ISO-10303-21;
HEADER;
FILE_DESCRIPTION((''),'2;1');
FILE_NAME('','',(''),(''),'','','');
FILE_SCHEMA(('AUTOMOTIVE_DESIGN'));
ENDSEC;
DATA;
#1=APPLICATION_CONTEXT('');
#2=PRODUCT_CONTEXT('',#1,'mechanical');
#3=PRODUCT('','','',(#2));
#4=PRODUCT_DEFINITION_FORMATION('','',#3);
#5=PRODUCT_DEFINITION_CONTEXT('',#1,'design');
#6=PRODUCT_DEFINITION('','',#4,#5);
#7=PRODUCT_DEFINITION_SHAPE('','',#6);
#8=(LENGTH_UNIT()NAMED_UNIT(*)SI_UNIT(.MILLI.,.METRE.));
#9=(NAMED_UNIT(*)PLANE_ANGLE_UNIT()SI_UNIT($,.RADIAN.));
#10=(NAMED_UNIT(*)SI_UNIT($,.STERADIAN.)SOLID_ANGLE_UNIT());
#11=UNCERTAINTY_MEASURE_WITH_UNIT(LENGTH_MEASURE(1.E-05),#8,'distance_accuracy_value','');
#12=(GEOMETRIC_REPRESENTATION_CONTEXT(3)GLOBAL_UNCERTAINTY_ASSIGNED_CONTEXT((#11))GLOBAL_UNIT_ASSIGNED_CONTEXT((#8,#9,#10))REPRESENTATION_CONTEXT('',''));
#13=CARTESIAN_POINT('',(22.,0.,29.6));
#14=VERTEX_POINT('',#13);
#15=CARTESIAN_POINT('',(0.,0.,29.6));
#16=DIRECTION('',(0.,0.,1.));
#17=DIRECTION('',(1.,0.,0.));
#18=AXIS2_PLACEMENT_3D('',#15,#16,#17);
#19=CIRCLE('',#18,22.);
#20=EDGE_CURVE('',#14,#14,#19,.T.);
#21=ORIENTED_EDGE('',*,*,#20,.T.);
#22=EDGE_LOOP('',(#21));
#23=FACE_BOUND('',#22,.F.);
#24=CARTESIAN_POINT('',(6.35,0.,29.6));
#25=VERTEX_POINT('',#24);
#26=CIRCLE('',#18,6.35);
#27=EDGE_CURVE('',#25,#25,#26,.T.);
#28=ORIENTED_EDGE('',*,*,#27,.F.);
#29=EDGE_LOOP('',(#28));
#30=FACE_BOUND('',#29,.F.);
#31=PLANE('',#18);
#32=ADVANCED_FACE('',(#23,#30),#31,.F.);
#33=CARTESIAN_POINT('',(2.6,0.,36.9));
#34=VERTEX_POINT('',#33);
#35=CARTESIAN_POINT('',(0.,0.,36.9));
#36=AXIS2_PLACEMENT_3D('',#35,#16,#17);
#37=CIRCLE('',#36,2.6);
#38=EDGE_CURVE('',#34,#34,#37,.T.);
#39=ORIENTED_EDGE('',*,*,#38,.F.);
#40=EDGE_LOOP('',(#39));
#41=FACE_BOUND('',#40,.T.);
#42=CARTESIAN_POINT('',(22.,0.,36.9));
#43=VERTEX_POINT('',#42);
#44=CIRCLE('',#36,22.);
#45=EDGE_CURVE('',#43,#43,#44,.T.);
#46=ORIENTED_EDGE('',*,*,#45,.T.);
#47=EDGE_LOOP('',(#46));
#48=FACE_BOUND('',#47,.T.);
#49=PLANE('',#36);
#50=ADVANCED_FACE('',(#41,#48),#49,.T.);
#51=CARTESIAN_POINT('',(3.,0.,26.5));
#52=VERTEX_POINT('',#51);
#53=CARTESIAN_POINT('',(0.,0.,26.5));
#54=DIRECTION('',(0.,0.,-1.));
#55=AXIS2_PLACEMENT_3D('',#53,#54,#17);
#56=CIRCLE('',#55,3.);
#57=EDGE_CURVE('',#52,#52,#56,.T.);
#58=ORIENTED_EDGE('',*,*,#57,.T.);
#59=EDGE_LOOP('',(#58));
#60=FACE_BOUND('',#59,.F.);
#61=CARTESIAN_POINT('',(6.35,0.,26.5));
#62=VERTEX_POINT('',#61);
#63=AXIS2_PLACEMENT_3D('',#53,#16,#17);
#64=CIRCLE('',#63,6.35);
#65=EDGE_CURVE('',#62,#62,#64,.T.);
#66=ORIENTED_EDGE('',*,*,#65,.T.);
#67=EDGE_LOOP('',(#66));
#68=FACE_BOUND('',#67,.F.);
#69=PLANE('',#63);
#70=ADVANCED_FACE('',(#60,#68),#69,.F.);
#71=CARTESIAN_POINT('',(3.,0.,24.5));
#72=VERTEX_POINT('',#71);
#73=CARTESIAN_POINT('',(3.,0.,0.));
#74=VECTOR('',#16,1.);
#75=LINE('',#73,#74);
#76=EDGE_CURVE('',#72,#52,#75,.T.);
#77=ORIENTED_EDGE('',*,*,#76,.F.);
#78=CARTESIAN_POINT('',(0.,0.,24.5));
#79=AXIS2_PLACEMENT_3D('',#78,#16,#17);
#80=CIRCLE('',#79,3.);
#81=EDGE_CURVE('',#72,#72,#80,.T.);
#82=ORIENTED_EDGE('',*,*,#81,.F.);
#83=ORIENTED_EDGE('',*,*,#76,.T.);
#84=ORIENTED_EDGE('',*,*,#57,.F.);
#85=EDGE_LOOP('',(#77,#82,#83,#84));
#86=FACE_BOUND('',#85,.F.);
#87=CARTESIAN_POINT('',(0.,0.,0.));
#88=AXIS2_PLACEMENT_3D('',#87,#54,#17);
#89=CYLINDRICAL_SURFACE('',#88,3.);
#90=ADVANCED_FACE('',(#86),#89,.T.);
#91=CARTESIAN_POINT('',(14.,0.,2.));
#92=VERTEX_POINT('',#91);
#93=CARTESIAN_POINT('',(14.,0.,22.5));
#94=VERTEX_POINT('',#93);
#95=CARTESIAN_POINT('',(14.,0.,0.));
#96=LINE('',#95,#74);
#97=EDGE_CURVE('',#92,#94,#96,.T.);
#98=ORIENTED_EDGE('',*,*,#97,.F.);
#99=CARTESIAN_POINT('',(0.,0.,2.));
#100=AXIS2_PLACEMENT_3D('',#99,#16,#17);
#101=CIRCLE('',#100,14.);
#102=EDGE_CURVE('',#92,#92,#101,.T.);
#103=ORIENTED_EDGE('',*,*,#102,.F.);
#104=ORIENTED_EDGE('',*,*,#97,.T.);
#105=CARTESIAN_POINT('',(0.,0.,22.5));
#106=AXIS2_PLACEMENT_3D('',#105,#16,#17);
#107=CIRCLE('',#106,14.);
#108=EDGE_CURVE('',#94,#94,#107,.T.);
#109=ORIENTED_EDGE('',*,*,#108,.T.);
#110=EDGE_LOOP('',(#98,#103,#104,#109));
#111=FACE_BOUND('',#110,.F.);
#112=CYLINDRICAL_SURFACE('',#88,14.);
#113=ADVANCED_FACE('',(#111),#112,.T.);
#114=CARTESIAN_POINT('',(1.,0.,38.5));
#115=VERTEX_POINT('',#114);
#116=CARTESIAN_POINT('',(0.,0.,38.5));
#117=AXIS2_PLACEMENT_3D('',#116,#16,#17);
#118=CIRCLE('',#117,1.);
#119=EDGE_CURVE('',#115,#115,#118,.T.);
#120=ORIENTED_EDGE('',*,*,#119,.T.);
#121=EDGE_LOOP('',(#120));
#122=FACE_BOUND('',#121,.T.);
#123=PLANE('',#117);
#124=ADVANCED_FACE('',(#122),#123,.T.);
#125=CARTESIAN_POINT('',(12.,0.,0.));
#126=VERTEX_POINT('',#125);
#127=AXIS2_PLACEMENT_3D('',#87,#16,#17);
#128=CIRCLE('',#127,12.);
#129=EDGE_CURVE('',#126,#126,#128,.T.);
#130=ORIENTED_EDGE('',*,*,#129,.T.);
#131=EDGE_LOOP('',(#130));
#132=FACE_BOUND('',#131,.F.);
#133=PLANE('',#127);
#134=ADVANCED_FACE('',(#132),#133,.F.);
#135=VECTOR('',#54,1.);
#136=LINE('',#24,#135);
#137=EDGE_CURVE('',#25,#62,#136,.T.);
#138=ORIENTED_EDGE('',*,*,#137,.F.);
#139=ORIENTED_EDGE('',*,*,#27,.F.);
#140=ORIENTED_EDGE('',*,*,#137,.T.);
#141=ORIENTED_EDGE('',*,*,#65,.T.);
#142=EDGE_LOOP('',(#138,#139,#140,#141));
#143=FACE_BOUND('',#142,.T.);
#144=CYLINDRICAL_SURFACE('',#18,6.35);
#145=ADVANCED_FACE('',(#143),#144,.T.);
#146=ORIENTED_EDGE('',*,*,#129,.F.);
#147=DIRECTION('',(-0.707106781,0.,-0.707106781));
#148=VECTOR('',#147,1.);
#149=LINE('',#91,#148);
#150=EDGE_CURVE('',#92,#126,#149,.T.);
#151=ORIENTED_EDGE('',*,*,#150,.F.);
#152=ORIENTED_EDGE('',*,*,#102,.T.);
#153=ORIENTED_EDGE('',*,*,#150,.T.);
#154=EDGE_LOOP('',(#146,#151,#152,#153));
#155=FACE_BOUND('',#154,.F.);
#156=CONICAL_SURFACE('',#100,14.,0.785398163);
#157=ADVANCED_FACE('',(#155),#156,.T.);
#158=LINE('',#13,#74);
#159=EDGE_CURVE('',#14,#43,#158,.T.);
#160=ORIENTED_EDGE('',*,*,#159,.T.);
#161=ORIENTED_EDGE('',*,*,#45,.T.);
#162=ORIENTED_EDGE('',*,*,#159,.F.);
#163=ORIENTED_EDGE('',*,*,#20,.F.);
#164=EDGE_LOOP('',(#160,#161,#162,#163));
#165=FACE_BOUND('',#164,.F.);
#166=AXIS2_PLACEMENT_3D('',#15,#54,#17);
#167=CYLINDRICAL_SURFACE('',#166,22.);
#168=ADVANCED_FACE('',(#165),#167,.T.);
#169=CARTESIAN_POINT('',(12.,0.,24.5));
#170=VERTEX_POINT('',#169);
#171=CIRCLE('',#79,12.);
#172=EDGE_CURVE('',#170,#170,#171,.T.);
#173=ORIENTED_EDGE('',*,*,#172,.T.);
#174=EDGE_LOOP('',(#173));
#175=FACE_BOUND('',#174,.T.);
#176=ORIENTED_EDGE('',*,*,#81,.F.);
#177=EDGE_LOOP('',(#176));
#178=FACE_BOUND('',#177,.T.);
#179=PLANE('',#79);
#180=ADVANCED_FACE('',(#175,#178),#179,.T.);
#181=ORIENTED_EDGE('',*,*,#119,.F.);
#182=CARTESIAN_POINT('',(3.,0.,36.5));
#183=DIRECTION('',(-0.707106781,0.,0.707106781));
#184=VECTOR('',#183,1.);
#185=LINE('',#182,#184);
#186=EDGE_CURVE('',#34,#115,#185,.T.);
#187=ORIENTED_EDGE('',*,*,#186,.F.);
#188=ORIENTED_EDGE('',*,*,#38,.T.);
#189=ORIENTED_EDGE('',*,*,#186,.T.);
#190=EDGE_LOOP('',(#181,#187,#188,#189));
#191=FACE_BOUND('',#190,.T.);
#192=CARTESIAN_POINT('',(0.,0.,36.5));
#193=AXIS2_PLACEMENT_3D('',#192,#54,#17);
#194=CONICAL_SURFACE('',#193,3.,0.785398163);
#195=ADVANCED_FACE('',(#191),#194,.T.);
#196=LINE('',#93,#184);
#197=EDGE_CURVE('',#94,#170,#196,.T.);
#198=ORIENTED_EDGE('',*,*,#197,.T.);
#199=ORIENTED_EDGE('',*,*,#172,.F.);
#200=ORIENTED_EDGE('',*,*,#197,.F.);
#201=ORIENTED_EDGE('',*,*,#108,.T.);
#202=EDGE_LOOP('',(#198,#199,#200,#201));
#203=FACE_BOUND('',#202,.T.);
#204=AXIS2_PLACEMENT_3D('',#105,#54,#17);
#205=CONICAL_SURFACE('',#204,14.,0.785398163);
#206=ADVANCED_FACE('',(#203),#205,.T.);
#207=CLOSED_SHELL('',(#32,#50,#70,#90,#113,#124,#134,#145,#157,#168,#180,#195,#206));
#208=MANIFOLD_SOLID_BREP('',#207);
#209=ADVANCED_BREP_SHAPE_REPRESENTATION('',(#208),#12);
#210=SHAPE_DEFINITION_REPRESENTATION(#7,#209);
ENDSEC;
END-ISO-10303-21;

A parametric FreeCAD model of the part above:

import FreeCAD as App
import Part
import Sketcher

V = App.Vector
Q = App.Units.Quantity


def edges_at(feature, points):
    """Names of the edges that pass closest to the given points."""
    edges = feature.Shape.Edges
    near = lambda p: min(range(len(edges)), key=lambda i: edges[i].distToShape(Part.Vertex(*p))[0])
    return sorted({f"Edge{near(p) + 1}" for p in points})

doc = App.newDocument("Part")
body = doc.addObject("PartDesign::Body", "Body")

# Sketch on XY plane
sketch1 = body.newObject("Sketcher::SketchObject", "Sketch")
sketch1.AttachmentSupport = (doc.getObject("XY_Plane"), [""])
sketch1.MapMode = "FlatFace"
sketch1.addGeometry(Part.Circle(V(0, 0, 0), V(0, 0, 1), 3), False)
sketch1.addConstraint([
    Sketcher.Constraint("Coincident", 0, 3, -1, 1),
    Sketcher.Constraint("Diameter", 0, Q("6 mm")),
])
pad1 = body.newObject("PartDesign::Pad", "Pad")
pad1.Profile = sketch1
pad1.Length = 38.5

# Sketch on XY plane
sketch2 = body.newObject("Sketcher::SketchObject", "Sketch001")
sketch2.AttachmentSupport = (doc.getObject("XY_Plane"), [""])
sketch2.MapMode = "FlatFace"
sketch2.addGeometry([
    Part.Circle(V(0, 0, 0), V(0, 0, 1), 14),
    Part.Circle(V(0, 0, 0), V(0, 0, 1), 3),
], False)
sketch2.addConstraint([
    Sketcher.Constraint("Coincident", 0, 3, -1, 1),
    Sketcher.Constraint("Coincident", 1, 3, -1, 1),
    Sketcher.Constraint("Diameter", 0, Q("28 mm")),
    Sketcher.Constraint("Diameter", 1, Q("6 mm")),
])
pad2 = body.newObject("PartDesign::Pad", "Pad001")
pad2.Profile = sketch2
pad2.Length = 24.5
doc.recompute()

chamfer = body.newObject("PartDesign::Chamfer", "Chamfer")
chamfer.Base = (pad2, edges_at(pad2, [(-14, 0, 0), (-14, 0, 24.5), (-3, 0, 38.5)]))
chamfer.Size = 2

# Sketch on XY plane
sketch3 = body.newObject("Sketcher::SketchObject", "Sketch002")
sketch3.AttachmentSupport = (doc.getObject("XY_Plane"), [""])
sketch3.MapMode = "FlatFace"
sketch3.AttachmentOffset = App.Placement(V(0, 0, 29.6), App.Rotation())
sketch3.addGeometry(Part.Circle(V(0, 0, 0), V(0, 0, 1), 22), False)
sketch3.addConstraint([
    Sketcher.Constraint("Coincident", 0, 3, -1, 1),
    Sketcher.Constraint("Diameter", 0, Q("44 mm")),
])
pad3 = body.newObject("PartDesign::Pad", "Pad002")
pad3.Profile = sketch3
pad3.Length = 7.3

# Sketch on XY plane
sketch4 = body.newObject("Sketcher::SketchObject", "Sketch003")
sketch4.AttachmentSupport = (doc.getObject("XY_Plane"), [""])
sketch4.MapMode = "FlatFace"
sketch4.AttachmentOffset = App.Placement(V(0, 0, 29.6), App.Rotation())
sketch4.addGeometry(Part.Circle(V(0, 0, 0), V(0, 0, 1), 6), False)
sketch4.addConstraint([
    Sketcher.Constraint("Coincident", 0, 3, -1, 1),
    Sketcher.Constraint("Diameter", 0, Q("12.7 mm")),
])
pad4 = body.newObject("PartDesign::Pad", "Pad003")
pad4.Profile = sketch4
pad4.Length = 3.1
pad4.Reversed = True

doc.recompute()
